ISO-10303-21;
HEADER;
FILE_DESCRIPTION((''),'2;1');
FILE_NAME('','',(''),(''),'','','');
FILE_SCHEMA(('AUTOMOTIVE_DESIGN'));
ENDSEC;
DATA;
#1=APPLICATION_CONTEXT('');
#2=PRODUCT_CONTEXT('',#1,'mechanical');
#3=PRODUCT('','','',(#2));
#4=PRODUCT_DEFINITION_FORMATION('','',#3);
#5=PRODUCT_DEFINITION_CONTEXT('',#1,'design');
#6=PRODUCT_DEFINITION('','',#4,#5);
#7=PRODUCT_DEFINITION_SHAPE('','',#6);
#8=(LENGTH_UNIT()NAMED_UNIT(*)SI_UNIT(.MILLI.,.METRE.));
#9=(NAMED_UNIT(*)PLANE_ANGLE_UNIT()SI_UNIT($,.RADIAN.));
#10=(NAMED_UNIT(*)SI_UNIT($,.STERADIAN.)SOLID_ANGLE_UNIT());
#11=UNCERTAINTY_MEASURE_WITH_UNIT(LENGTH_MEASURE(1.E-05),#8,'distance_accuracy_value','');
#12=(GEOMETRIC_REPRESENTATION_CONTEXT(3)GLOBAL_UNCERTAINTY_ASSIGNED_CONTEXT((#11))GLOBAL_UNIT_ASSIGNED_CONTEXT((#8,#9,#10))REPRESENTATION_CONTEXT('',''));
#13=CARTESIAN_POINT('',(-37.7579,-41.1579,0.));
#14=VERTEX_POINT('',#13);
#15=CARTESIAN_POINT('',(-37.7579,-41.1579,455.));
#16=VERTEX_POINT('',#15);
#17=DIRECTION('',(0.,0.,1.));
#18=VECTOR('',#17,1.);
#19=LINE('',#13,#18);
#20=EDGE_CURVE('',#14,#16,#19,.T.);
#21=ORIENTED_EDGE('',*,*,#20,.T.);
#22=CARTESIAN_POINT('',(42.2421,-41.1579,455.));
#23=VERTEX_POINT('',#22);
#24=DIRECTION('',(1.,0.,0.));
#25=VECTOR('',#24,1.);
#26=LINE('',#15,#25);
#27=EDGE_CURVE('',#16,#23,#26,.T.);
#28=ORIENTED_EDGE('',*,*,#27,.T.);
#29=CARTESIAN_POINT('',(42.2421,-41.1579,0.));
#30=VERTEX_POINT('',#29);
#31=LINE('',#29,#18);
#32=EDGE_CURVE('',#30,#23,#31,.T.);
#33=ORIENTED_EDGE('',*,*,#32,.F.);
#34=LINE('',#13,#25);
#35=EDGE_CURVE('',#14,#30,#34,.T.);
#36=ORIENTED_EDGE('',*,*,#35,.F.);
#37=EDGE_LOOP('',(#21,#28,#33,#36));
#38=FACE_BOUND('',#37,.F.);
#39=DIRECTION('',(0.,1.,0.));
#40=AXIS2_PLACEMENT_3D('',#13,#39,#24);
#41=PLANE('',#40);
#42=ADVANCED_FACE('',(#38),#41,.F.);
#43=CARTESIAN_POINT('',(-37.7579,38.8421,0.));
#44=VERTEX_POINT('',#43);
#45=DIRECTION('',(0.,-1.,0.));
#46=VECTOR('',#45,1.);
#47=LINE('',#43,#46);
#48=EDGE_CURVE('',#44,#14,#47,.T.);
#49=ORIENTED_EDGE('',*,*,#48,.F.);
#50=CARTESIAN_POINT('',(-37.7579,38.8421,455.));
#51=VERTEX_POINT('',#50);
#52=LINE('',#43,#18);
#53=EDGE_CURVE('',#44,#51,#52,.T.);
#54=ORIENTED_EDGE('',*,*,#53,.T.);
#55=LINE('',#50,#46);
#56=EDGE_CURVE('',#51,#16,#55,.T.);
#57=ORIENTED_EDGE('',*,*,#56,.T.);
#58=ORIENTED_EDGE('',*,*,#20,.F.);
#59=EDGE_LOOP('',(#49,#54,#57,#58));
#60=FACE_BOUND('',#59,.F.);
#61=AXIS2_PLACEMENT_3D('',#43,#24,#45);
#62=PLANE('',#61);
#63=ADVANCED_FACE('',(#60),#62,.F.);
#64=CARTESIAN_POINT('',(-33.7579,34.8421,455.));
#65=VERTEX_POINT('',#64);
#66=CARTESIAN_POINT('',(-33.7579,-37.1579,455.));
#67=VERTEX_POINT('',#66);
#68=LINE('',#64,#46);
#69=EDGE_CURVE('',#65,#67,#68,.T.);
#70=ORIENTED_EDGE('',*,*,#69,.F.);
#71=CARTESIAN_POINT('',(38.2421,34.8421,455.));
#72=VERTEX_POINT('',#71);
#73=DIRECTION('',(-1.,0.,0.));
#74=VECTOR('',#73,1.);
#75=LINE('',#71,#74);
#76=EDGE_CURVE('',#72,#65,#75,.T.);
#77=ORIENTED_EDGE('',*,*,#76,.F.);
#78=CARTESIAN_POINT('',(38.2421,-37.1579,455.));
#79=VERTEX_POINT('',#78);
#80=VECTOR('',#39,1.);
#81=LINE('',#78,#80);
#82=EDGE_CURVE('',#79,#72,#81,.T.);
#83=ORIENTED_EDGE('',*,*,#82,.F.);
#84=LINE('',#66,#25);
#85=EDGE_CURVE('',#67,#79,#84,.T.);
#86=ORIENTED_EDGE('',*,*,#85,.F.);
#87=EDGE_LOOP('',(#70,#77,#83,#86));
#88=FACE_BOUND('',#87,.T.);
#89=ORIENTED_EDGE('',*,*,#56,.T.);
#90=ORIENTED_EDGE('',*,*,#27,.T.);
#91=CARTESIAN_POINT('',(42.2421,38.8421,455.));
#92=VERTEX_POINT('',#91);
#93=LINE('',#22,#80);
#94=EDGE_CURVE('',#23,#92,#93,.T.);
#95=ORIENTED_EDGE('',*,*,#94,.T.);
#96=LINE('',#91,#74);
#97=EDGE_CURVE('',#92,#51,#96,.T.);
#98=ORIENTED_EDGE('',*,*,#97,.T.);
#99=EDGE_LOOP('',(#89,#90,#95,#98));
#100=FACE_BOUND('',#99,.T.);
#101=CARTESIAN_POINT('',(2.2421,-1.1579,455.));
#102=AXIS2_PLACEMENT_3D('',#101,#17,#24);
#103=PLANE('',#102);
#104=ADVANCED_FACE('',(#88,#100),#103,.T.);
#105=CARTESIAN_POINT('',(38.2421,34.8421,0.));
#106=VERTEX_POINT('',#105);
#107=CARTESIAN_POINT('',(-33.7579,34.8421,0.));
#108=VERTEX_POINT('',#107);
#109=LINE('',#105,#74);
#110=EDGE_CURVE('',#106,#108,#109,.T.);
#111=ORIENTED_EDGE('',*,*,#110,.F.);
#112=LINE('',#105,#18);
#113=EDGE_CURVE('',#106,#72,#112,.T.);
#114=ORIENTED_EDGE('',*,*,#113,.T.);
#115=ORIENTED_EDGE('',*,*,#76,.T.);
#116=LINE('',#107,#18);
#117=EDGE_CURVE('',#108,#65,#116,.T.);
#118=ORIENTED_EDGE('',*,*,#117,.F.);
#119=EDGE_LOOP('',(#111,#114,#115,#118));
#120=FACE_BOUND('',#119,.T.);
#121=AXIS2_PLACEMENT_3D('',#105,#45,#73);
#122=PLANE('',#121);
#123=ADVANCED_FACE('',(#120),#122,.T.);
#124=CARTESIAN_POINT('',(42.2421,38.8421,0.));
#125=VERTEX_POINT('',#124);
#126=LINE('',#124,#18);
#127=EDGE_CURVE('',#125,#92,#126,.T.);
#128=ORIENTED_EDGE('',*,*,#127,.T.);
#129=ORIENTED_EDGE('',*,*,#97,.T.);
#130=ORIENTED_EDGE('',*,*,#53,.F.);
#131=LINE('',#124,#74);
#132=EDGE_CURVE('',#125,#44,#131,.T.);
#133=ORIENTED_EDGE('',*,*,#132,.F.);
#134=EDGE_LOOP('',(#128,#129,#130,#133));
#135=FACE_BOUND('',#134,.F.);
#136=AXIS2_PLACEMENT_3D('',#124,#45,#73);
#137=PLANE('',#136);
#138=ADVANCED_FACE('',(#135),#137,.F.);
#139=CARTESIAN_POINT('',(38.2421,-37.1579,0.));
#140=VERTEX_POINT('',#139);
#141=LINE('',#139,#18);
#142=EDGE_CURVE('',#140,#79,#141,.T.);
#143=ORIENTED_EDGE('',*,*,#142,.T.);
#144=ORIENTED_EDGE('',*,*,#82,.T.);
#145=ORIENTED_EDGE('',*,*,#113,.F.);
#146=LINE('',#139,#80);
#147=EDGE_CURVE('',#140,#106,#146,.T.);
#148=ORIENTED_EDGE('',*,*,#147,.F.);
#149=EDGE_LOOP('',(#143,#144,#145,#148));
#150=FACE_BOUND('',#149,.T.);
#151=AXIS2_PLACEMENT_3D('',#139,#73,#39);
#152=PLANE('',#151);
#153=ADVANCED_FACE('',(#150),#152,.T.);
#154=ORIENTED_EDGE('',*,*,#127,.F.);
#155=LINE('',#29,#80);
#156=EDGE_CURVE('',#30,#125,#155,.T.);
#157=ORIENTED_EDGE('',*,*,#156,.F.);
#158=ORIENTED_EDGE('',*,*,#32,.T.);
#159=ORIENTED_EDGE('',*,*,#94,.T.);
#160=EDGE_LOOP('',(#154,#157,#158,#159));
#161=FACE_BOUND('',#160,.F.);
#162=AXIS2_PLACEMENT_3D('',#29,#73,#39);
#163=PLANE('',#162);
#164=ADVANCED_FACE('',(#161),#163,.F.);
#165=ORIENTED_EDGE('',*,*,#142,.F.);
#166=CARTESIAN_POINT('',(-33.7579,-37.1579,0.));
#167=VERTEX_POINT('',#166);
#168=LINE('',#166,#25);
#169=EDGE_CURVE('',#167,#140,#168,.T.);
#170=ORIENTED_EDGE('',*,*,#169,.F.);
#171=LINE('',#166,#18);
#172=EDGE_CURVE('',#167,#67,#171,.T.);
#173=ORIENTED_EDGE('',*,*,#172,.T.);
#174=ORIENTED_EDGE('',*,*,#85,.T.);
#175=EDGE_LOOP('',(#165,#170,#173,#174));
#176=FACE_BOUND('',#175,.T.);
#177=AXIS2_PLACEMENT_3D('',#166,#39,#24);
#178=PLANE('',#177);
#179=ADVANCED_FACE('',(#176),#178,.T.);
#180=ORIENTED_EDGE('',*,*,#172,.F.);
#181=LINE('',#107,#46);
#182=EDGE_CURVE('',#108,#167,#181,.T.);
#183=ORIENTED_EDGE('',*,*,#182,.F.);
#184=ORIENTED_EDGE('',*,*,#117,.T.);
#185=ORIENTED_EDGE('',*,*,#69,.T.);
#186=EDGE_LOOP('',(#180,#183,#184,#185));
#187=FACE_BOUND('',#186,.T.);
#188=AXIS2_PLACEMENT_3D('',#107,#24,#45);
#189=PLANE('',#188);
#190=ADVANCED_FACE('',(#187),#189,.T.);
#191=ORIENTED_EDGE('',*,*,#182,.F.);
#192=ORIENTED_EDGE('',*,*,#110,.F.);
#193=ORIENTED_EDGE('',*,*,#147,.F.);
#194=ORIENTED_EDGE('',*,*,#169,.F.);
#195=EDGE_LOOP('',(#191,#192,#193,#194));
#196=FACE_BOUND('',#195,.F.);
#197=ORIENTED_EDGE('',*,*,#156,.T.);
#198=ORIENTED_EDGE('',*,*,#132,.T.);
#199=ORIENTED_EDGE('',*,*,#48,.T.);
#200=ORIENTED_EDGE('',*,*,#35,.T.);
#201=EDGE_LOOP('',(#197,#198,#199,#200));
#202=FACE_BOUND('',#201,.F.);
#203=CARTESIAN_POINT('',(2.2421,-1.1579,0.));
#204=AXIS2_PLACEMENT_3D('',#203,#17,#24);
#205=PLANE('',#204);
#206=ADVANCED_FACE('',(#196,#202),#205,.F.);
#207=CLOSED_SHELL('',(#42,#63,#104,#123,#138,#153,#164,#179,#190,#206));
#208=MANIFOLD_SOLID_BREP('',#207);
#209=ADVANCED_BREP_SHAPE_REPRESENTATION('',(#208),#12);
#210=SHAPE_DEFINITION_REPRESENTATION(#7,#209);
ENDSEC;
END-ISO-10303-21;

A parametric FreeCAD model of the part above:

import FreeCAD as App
import Part
import Sketcher


def add_polygon(sketch, points):
    """Adds a closed chain of lines whose ends are joined by coincident constraints."""
    first, n = sketch.GeometryCount, len(points)
    for a, b in zip(points, points[1:] + points[:1]):
        sketch.addGeometry(Part.LineSegment(App.Vector(*a, 0), App.Vector(*b, 0)), False)
    for i in range(n):
        sketch.addConstraint(Sketcher.Constraint("Coincident", first + i, 2, first + (i + 1) % n, 1))

doc = App.newDocument("Part")
params = doc.addObject("Spreadsheet::Sheet", "Params")
for row, (alias, value) in enumerate([
    ("sketch1_width", "80 mm"),
    ("sketch1_width2", "72 mm"),
    ("pad1_length", "455 mm"),
], start=1):
    params.set(f"A{row}", alias)
    params.set(f"B{row}", "=" + value)
    params.setAlias(f"B{row}", alias)

body = doc.addObject("PartDesign::Body", "Body")

# Sketch on XY plane
sketch1 = doc.addObject("Sketcher::SketchObject", "Sketch")
body.addObject(sketch1)
sketch1.AttachmentSupport = (doc.XY_Plane, [""])
sketch1.MapMode = "FlatFace"
add_polygon(sketch1, [(42, 39), (-38, 39), (-38, -41), (42, -41)])  # lines 0-3
add_polygon(sketch1, [(-34, -37), (-34, 35), (38, 35), (38, -37)])  # lines 4-7
sketch1.addConstraint([
    Sketcher.Constraint("Horizontal", 0),
    Sketcher.Constraint("Vertical", 1),
    Sketcher.Constraint("Horizontal", 2),
    Sketcher.Constraint("Vertical", 3),
    Sketcher.Constraint("Vertical", 4),
    Sketcher.Constraint("Horizontal", 5),
    Sketcher.Constraint("Vertical", 6),
    Sketcher.Constraint("Horizontal", 7),
    Sketcher.Constraint("Equal", 2, 1),
    Sketcher.Constraint("Equal", 7, 4),
    Sketcher.Constraint("DistanceX", 0, 2, 0, 1, 80.0),
    Sketcher.Constraint("DistanceX", 5, 1, 5, 2, 72.0),
    Sketcher.Constraint("DistanceX", -1, 1, 2, 2, 42.242),
    Sketcher.Constraint("DistanceX", -1, 1, 5, 2, 38.242),
    Sketcher.Constraint("DistanceY", 4, 2, 0, 2, 4.0),
    Sketcher.Constraint("DistanceY", -1, 1, 0, 2, 38.842),
])
sketch1.setExpression("Constraints[18]", "Params.sketch1_width")
sketch1.setExpression("Constraints[19]", "Params.sketch1_width2")
pad1 = doc.addObject("PartDesign::Pad", "Pad")
body.addObject(pad1)
pad1.Profile = sketch1
pad1.setExpression("Length", "Params.pad1_length")

doc.recompute()
